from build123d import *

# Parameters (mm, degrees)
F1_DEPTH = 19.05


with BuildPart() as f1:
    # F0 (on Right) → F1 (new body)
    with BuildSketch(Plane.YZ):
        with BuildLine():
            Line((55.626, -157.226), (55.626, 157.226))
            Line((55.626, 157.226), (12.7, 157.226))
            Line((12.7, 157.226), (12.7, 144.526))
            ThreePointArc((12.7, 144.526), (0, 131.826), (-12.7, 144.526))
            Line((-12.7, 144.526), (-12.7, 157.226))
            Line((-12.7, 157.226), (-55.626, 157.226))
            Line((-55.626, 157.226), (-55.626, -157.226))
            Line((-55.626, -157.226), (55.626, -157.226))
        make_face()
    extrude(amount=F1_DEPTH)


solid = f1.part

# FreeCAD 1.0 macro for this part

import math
import FreeCAD as App
import Part
import Sketcher
from FreeCAD import Vector
Q = App.Units.Quantity

doc = App.newDocument("Part")
body = doc.addObject("PartDesign::Body", "Body")

sketch1 = doc.addObject("Sketcher::SketchObject", "Sketch")
body.addObject(sketch1)
sketch1.AttachmentSupport = (doc.YZ_Plane, [""])
sketch1.MapMode = "FlatFace"
sketch1.addGeometry(Part.LineSegment(Vector(55.626, -157.226, 0), Vector(55.626, 157.226, 0)), False)
sketch1.addGeometry(Part.LineSegment(Vector(55.626, 157.226, 0), Vector(12.7, 157.226, 0)), False)
sketch1.addGeometry(Part.LineSegment(Vector(12.7, 157.226, 0), Vector(12.7, 144.526, 0)), False)
sketch1.addGeometry(Part.ArcOfCircle(Part.Circle(Vector(0, 144.526, 0), Vector(0, 0, 1), 12.7), math.radians(180), math.radians(360)), False)
sketch1.addGeometry(Part.LineSegment(Vector(-12.7, 144.526, 0), Vector(-12.7, 157.226, 0)), False)
sketch1.addGeometry(Part.LineSegment(Vector(-12.7, 157.226, 0), Vector(-55.626, 157.226, 0)), False)
sketch1.addGeometry(Part.LineSegment(Vector(-55.626, 157.226, 0), Vector(-55.626, -157.226, 0)), False)
sketch1.addGeometry(Part.LineSegment(Vector(-55.626, -157.226, 0), Vector(55.626, -157.226, 0)), False)
sketch1.addConstraint(Sketcher.Constraint("Coincident", 0, 2, 1, 1))
sketch1.addConstraint(Sketcher.Constraint("Coincident", 1, 2, 2, 1))
sketch1.addConstraint(Sketcher.Constraint("Tangent", 2, 2, 3, 2))
sketch1.addConstraint(Sketcher.Constraint("Tangent", 3, 1, 4, 1))
sketch1.addConstraint(Sketcher.Constraint("Coincident", 4, 2, 5, 1))
sketch1.addConstraint(Sketcher.Constraint("Coincident", 5, 2, 6, 1))
sketch1.addConstraint(Sketcher.Constraint("Coincident", 6, 2, 7, 1))
sketch1.addConstraint(Sketcher.Constraint("Coincident", 7, 2, 0, 1))
sketch1.addConstraint(Sketcher.Constraint("Vertical", 0))
sketch1.addConstraint(Sketcher.Constraint("Horizontal", 1))
sketch1.addConstraint(Sketcher.Constraint("Vertical", 2))
sketch1.addConstraint(Sketcher.Constraint("Vertical", 4))
sketch1.addConstraint(Sketcher.Constraint("Horizontal", 5))
sketch1.addConstraint(Sketcher.Constraint("Vertical", 6))
sketch1.addConstraint(Sketcher.Constraint("Horizontal", 7))
sketch1.addConstraint(Sketcher.Constraint("Symmetric", 0, 2, 6, 2, -1, 1))
sketch1.addConstraint(Sketcher.Constraint("Symmetric", 1, 2, 4, 2, -2))
sketch1.addConstraint(Sketcher.Constraint("Radius", 3, Q("0.5 in")))
sketch1.addConstraint(Sketcher.Constraint("DistanceY", 2, 2, 2, 1, Q("0.5 in")))
sketch1.addConstraint(Sketcher.Constraint("DistanceX", 1, 2, 1, 1, Q("1.69 in")))
sketch1.addConstraint(Sketcher.Constraint("DistanceY", 0, 1, 0, 2, Q("12.38 in")))
pad1 = doc.addObject("PartDesign::Pad", "Pad")
body.addObject(pad1)
pad1.Profile = sketch1
pad1.Length = Q("0.75 in")

doc.recompute()
